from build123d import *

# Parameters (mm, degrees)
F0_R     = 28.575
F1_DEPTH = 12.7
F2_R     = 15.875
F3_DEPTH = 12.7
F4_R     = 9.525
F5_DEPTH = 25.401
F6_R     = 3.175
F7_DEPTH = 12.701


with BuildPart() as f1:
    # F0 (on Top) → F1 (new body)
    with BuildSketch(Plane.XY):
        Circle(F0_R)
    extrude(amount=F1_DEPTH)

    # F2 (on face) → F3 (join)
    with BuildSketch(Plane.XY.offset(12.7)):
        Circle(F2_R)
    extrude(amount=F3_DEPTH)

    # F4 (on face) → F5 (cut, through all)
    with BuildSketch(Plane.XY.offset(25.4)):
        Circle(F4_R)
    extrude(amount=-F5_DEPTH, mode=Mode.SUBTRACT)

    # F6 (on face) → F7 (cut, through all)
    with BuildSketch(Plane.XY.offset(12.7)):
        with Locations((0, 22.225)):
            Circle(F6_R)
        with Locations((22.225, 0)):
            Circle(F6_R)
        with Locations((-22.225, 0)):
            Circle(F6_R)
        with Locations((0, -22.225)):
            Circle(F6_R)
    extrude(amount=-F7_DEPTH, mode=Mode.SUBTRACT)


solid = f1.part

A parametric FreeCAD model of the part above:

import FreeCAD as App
import Part
import Sketcher
Q = App.Units.Quantity

doc = App.newDocument("Part")
body = doc.addObject("PartDesign::Body", "Body")

sketch1 = doc.addObject("Sketcher::SketchObject", "Sketch")
body.addObject(sketch1)
sketch1.AttachmentSupport = (doc.XY_Plane, [""])
sketch1.MapMode = "FlatFace"
sketch1.addGeometry(Part.Circle(App.Vector(0, 0, 0), App.Vector(0, 0, 1), 29), False)
sketch1.addConstraint([
    Sketcher.Constraint("Coincident", 0, 3, -1, 1),
    Sketcher.Constraint("Diameter", 0, Q("2.25 in")),
])
pad1 = doc.addObject("PartDesign::Pad", "Pad")
body.addObject(pad1)
pad1.Profile = sketch1
pad1.Length = Q("0.5 in")

sketch2 = doc.addObject("Sketcher::SketchObject", "Sketch001")
body.addObject(sketch2)
sketch2.AttachmentSupport = (doc.XY_Plane, [""])
sketch2.MapMode = "FlatFace"
sketch2.AttachmentOffset = App.Placement(App.Vector(0, 0, 0.5 * 25.4), App.Rotation())
sketch2.addGeometry(Part.Circle(App.Vector(0, 0, 0), App.Vector(0, 0, 1), 16), False)
sketch2.addConstraint([
    Sketcher.Constraint("Coincident", 0, 3, -1, 1),
    Sketcher.Constraint("Diameter", 0, Q("1.25 in")),
])
pad2 = doc.addObject("PartDesign::Pad", "Pad001")
body.addObject(pad2)
pad2.Profile = sketch2
pad2.Length = Q("0.5 in")

sketch3 = doc.addObject("Sketcher::SketchObject", "Sketch002")
body.addObject(sketch3)
sketch3.AttachmentSupport = (doc.XY_Plane, [""])
sketch3.MapMode = "FlatFace"
sketch3.AttachmentOffset = App.Placement(App.Vector(0, 0, 1 * 25.4), App.Rotation())
sketch3.addGeometry(Part.Circle(App.Vector(0, 0, 0), App.Vector(0, 0, 1), 10), False)
sketch3.addConstraint([
    Sketcher.Constraint("Coincident", 0, 3, -1, 1),
    Sketcher.Constraint("Diameter", 0, Q("0.75 in")),
])
pocket1 = doc.addObject("PartDesign::Pocket", "Pocket")
body.addObject(pocket1)
pocket1.Profile = sketch3
pocket1.Type = "ThroughAll"

sketch4 = doc.addObject("Sketcher::SketchObject", "Sketch003")
body.addObject(sketch4)
sketch4.AttachmentSupport = (doc.XY_Plane, [""])
sketch4.MapMode = "FlatFace"
sketch4.AttachmentOffset = App.Placement(App.Vector(0, 0, 0.5 * 25.4), App.Rotation())
sketch4.addGeometry([
    Part.Circle(App.Vector(0, 22.2, 0), App.Vector(0, 0, 1), 3.2),
    Part.Circle(App.Vector(22.2, 0, 0), App.Vector(0, 0, 1), 3.2),
    Part.Circle(App.Vector(-22.2, 0, 0), App.Vector(0, 0, 1), 3.2),
    Part.Circle(App.Vector(0, -22.2, 0), App.Vector(0, 0, 1), 3.2),
], False)
sketch4.addConstraint([
    Sketcher.Constraint("Equal", 0, 1),
    Sketcher.Constraint("Equal", 1, 2),
    Sketcher.Constraint("Equal", 2, 3),
    Sketcher.Constraint("Symmetric", 1, 3, 2, 3, -1, 1),
    Sketcher.Constraint("Symmetric", 0, 3, 3, 3, -1, 1),
    Sketcher.Constraint("PointOnObject", 0, 3, -2),
    Sketcher.Constraint("PointOnObject", 1, 3, -1),
    Sketcher.Constraint("Diameter", 0, Q("0.25 in")),
    Sketcher.Constraint("DistanceX", 2, 3, 1, 3, Q("1.75 in")),
    Sketcher.Constraint("DistanceY", 3, 3, 0, 3, Q("1.75 in")),
])
pocket2 = doc.addObject("PartDesign::Pocket", "Pocket001")
body.addObject(pocket2)
pocket2.Profile = sketch4
pocket2.Type = "ThroughAll"

doc.recompute()
